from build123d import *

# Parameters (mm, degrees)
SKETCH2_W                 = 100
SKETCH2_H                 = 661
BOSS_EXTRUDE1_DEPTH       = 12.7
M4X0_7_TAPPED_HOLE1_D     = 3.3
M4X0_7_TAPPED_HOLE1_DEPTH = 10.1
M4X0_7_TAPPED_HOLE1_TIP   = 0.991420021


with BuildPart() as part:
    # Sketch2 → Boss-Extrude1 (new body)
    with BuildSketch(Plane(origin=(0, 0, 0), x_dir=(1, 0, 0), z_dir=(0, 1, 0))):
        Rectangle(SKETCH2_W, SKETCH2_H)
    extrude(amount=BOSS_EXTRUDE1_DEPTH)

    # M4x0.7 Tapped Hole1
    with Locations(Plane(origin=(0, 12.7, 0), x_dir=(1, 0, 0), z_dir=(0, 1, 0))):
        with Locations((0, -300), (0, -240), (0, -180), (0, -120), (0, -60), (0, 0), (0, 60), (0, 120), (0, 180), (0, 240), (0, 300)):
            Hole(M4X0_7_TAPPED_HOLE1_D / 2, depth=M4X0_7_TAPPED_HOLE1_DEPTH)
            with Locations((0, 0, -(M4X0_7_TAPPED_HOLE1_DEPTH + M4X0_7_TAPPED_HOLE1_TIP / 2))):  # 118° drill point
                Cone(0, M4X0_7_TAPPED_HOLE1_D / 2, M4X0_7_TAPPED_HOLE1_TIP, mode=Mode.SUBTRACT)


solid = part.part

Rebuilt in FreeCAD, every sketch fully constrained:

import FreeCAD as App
import Part
import Sketcher

doc = App.newDocument("Part")
body = doc.addObject("PartDesign::Body", "Body")

# Sketch on XZ plane
sketch1 = body.newObject("Sketcher::SketchObject", "Sketch")
sketch1.AttachmentSupport = (doc.getObject("XZ_Plane"), [""])
sketch1.MapMode = "FlatFace"
sketch1.addGeometry([
    Part.LineSegment(App.Vector(-50, -330, 0), App.Vector(-50, 330, 0)),
    Part.LineSegment(App.Vector(-50, 330, 0), App.Vector(50, 330, 0)),
    Part.LineSegment(App.Vector(50, 330, 0), App.Vector(50, -330, 0)),
    Part.LineSegment(App.Vector(50, -330, 0), App.Vector(-50, -330, 0)),
], False)
sketch1.addConstraint([
    Sketcher.Constraint("Coincident", 0, 2, 1, 1),
    Sketcher.Constraint("Coincident", 1, 2, 2, 1),
    Sketcher.Constraint("Coincident", 2, 2, 3, 1),
    Sketcher.Constraint("Coincident", 3, 2, 0, 1),
    Sketcher.Constraint("Vertical", 0),
    Sketcher.Constraint("Horizontal", 1),
    Sketcher.Constraint("Vertical", 2),
    Sketcher.Constraint("Horizontal", 3),
    Sketcher.Constraint("Symmetric", 0, 2, 2, 2, -1, 1),
    Sketcher.Constraint("DistanceX", 1, 1, 1, 2, 100.0),
    Sketcher.Constraint("DistanceY", 0, 1, 0, 2, 661.0),
])
pad1 = body.newObject("PartDesign::Pad", "Pad")
pad1.Profile = sketch1
pad1.Length = 12.7
pad1.Reversed = True

# Sketch on XZ plane
sketch2 = body.newObject("Sketcher::SketchObject", "Sketch001")
sketch2.AttachmentSupport = (doc.getObject("XZ_Plane"), [""])
sketch2.MapMode = "FlatFace"
sketch2.AttachmentOffset = App.Placement(App.Vector(0, 0, -12.7), App.Rotation())
sketch2.addGeometry([
    Part.Circle(App.Vector(0, 300, 0), App.Vector(0, 0, 1), 1.6),  # 0
    Part.Circle(App.Vector(0, 240, 0), App.Vector(0, 0, 1), 1.6),  # 1
    Part.Circle(App.Vector(0, 180, 0), App.Vector(0, 0, 1), 1.6),  # 2
    Part.Circle(App.Vector(0, 120, 0), App.Vector(0, 0, 1), 1.6),  # 3
    Part.Circle(App.Vector(0, 60, 0), App.Vector(0, 0, 1), 1.6),  # 4
    Part.Circle(App.Vector(0, 0, 0), App.Vector(0, 0, 1), 1.6),  # 5
    Part.Circle(App.Vector(0, -60, 0), App.Vector(0, 0, 1), 1.6),  # 6
    Part.Circle(App.Vector(0, -120, 0), App.Vector(0, 0, 1), 1.6),  # 7
    Part.Circle(App.Vector(0, -180, 0), App.Vector(0, 0, 1), 1.6),  # 8
    Part.Circle(App.Vector(0, -240, 0), App.Vector(0, 0, 1), 1.6),  # 9
    Part.Circle(App.Vector(0, -300, 0), App.Vector(0, 0, 1), 1.6),  # 10
], False)
sketch2.addConstraint([
    Sketcher.Constraint("Coincident", 5, 3, -1, 1),
    Sketcher.Constraint("Equal", 0, 1),
    Sketcher.Constraint("Equal", 1, 2),
    Sketcher.Constraint("Equal", 2, 3),
    Sketcher.Constraint("Equal", 3, 4),
    Sketcher.Constraint("Equal", 4, 5),
    Sketcher.Constraint("Equal", 5, 6),
    Sketcher.Constraint("Equal", 6, 7),
    Sketcher.Constraint("Equal", 7, 8),
    Sketcher.Constraint("Equal", 8, 9),
    Sketcher.Constraint("Equal", 9, 10),
    Sketcher.Constraint("Symmetric", 4, 3, 6, 3, -1, 1),
    Sketcher.Constraint("Symmetric", 3, 3, 7, 3, -1, 1),
    Sketcher.Constraint("Symmetric", 2, 3, 8, 3, -1, 1),
    Sketcher.Constraint("Symmetric", 1, 3, 9, 3, -1, 1),
    Sketcher.Constraint("Symmetric", 0, 3, 10, 3, -1, 1),
    Sketcher.Constraint("PointOnObject", 0, 3, -2),
    Sketcher.Constraint("PointOnObject", 1, 3, -2),
    Sketcher.Constraint("PointOnObject", 2, 3, -2),
    Sketcher.Constraint("PointOnObject", 3, 3, -2),
    Sketcher.Constraint("PointOnObject", 4, 3, -2),
    Sketcher.Constraint("Diameter", 0, 3.3),
    Sketcher.Constraint("DistanceY", -1, 1, 0, 3, 300.0),
    Sketcher.Constraint("DistanceY", -1, 1, 1, 3, 240.0),
    Sketcher.Constraint("DistanceY", -1, 1, 2, 3, 180.0),
    Sketcher.Constraint("DistanceY", -1, 1, 3, 3, 120.0),
    Sketcher.Constraint("DistanceY", -1, 1, 4, 3, 60.0),
])
doc.recompute()
hole = body.newObject("PartDesign::Hole", "Hole")
hole.Profile = sketch2
hole.ThreadType = "None"
hole.Diameter = 3.3
hole.DepthType = "Dimension"
hole.Depth = 10.1
hole.DrillPoint = "Angled"
hole.DrillPointAngle = 118
hole.Reversed = True

doc.recompute()
